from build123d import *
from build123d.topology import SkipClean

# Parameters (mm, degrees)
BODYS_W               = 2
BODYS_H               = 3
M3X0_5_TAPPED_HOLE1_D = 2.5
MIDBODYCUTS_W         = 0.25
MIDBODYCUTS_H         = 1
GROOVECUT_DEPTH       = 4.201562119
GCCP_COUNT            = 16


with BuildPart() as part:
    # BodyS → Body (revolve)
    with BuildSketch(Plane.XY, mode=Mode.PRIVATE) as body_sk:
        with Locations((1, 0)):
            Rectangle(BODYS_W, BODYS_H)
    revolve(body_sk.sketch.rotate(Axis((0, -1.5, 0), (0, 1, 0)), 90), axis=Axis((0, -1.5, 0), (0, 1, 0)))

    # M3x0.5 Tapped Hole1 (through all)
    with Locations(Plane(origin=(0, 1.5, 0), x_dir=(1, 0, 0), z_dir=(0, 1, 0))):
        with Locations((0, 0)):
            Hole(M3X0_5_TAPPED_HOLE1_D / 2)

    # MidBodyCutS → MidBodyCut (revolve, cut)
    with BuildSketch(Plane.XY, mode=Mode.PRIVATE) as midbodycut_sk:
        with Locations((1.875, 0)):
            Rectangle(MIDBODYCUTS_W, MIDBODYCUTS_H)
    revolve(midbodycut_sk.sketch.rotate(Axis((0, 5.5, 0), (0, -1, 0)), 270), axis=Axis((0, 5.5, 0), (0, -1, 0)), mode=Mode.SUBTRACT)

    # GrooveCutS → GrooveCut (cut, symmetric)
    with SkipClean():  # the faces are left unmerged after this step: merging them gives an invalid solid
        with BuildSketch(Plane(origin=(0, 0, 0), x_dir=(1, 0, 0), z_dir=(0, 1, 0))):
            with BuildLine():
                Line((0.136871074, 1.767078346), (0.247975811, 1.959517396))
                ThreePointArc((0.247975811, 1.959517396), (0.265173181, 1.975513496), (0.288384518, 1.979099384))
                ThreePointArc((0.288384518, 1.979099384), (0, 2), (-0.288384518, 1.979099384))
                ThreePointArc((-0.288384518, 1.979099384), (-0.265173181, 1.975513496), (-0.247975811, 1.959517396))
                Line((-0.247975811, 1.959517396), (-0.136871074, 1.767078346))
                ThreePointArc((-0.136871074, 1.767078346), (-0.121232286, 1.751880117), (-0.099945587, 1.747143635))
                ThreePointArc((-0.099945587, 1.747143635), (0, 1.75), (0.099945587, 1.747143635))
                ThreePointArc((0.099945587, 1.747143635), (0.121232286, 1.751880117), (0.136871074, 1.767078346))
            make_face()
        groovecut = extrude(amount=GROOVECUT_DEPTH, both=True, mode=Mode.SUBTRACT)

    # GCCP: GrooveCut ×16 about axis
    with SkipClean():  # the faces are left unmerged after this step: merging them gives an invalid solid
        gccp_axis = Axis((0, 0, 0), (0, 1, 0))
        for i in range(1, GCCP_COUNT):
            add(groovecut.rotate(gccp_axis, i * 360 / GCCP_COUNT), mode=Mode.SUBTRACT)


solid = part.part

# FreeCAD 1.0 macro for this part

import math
import FreeCAD as App
import Part
import Sketcher

V = App.Vector
Q = App.Units.Quantity

doc = App.newDocument("Part")
body = doc.addObject("PartDesign::Body", "Body")

sketch1 = doc.addObject("Sketcher::SketchObject", "Sketch")
body.addObject(sketch1)
sketch1.AttachmentSupport = (doc.XY_Plane, [""])
sketch1.MapMode = "FlatFace"
sketch1.addGeometry([
    Part.LineSegment(V(0, 1.5, 0), V(0, -1.5, 0)),
    Part.LineSegment(V(0, -1.5, 0), V(2, -1.5, 0)),
    Part.LineSegment(V(2, -1.5, 0), V(2, 1.5, 0)),
    Part.LineSegment(V(2, 1.5, 0), V(0, 1.5, 0)),
], False)
sketch1.addConstraint([
    Sketcher.Constraint("Coincident", 0, 2, 1, 1),
    Sketcher.Constraint("Coincident", 1, 2, 2, 1),
    Sketcher.Constraint("Coincident", 2, 2, 3, 1),
    Sketcher.Constraint("Coincident", 3, 2, 0, 1),
    Sketcher.Constraint("Vertical", 0),
    Sketcher.Constraint("Horizontal", 1),
    Sketcher.Constraint("Vertical", 2),
    Sketcher.Constraint("Horizontal", 3),
    Sketcher.Constraint("Symmetric", 0, 2, 3, 2, -1, 1),
    Sketcher.Constraint("DistanceX", 1, 1, 1, 2, 2.0),
    Sketcher.Constraint("DistanceY", 0, 2, 0, 1, 3.0),
])
revolution = doc.addObject("PartDesign::Revolution", "Revolution")
body.addObject(revolution)
revolution.Profile = sketch1
revolution.ReferenceAxis = (sketch1, ["V_Axis"])
revolution.Angle = 360

sketch2 = doc.addObject("Sketcher::SketchObject", "Sketch001")
body.addObject(sketch2)
sketch2.AttachmentSupport = (doc.XZ_Plane, [""])
sketch2.MapMode = "FlatFace"
sketch2.AttachmentOffset = App.Placement(V(0, 0, -1.5), App.Rotation())
sketch2.addGeometry(Part.Circle(V(0, 0, 0), V(0, 0, 1), 1.25), False)
sketch2.addConstraint([
    Sketcher.Constraint("Coincident", 0, 3, -1, 1),
    Sketcher.Constraint("Diameter", 0, 2.5),
])
doc.recompute()
hole = doc.addObject("PartDesign::Hole", "Hole")
body.addObject(hole)
hole.Profile = sketch2
hole.ThreadType = "None"
hole.Diameter = 2.5
hole.DepthType = "ThroughAll"
hole.Reversed = True

sketch3 = doc.addObject("Sketcher::SketchObject", "Sketch002")
body.addObject(sketch3)
sketch3.AttachmentSupport = (doc.XY_Plane, [""])
sketch3.MapMode = "FlatFace"
sketch3.addGeometry([
    Part.LineSegment(V(1.75, 0.5, 0), V(1.75, -0.5, 0)),
    Part.LineSegment(V(1.75, -0.5, 0), V(2, -0.5, 0)),
    Part.LineSegment(V(2, -0.5, 0), V(2, 0.5, 0)),
    Part.LineSegment(V(2, 0.5, 0), V(1.75, 0.5, 0)),
], False)
sketch3.addConstraint([
    Sketcher.Constraint("Coincident", 0, 2, 1, 1),
    Sketcher.Constraint("Coincident", 1, 2, 2, 1),
    Sketcher.Constraint("Coincident", 2, 2, 3, 1),
    Sketcher.Constraint("Coincident", 3, 2, 0, 1),
    Sketcher.Constraint("Vertical", 0),
    Sketcher.Constraint("Horizontal", 1),
    Sketcher.Constraint("Vertical", 2),
    Sketcher.Constraint("Horizontal", 3),
    Sketcher.Constraint("DistanceY", 0, 2, 0, 1, 1.0),
    Sketcher.Constraint("DistanceX", -1, 1, 1, 2, 2.0),
    Sketcher.Constraint("DistanceX", 1, 1, 1, 2, 0.25),
    Sketcher.Constraint("DistanceY", 0, 2, -1, 1, 0.5),
])
groove = doc.addObject("PartDesign::Groove", "Groove")
body.addObject(groove)
groove.Profile = sketch3
groove.ReferenceAxis = (sketch3, ["V_Axis"])
groove.Angle = 360

sketch4 = doc.addObject("Sketcher::SketchObject", "Sketch003")
body.addObject(sketch4)
sketch4.AttachmentSupport = (doc.XZ_Plane, [""])
sketch4.MapMode = "FlatFace"
sketch4.addGeometry([
    Part.LineSegment(V(0.136871, -1.767078, 0), V(0.247976, -1.959517, 0)),
    Part.ArcOfCircle(Part.Circle(V(0.282617, -1.939517, 0), V(0, 0, 1), 0.04), math.radians(-150.000001), math.radians(-81.709493)),
    Part.ArcOfCircle(Part.Circle(V(0, 0, 0), V(0, 0, 1), 2), math.radians(-98.290507), math.radians(-81.709493)),
    Part.ArcOfCircle(Part.Circle(V(-0.282617, -1.939517, 0), V(0, 0, 1), 0.04), math.radians(-98.290507), math.radians(-29.999999)),
    Part.LineSegment(V(-0.247976, -1.959517, 0), V(-0.136871, -1.767078, 0)),
    Part.ArcOfCircle(Part.Circle(V(-0.10223, -1.787078, 0), V(0, 0, 1), 0.04), math.radians(86.725953), math.radians(150.000002)),
    Part.ArcOfCircle(Part.Circle(V(0, 0, 0), V(0, 0, 1), 1.75), math.radians(-93.274044), math.radians(-86.725956)),
    Part.ArcOfCircle(Part.Circle(V(0.10223, -1.787078, 0), V(0, 0, 1), 0.04), math.radians(29.999998), math.radians(93.274047)),
], False)
sketch4.addConstraint([
    Sketcher.Constraint("Tangent", 0, 2, 1, 1),
    Sketcher.Constraint("Tangent", 1, 2, 2, 2),
    Sketcher.Constraint("Tangent", 2, 1, 3, 1),
    Sketcher.Constraint("Tangent", 3, 2, 4, 1),
    Sketcher.Constraint("Tangent", 4, 2, 5, 2),
    Sketcher.Constraint("Tangent", 5, 1, 6, 1),
    Sketcher.Constraint("Tangent", 6, 2, 7, 2),
    Sketcher.Constraint("Tangent", 7, 1, 0, 1),
    Sketcher.Constraint("Coincident", 2, 3, -1, 1),
    Sketcher.Constraint("Coincident", 6, 3, -1, 1),
    Sketcher.Constraint("Equal", 1, 3),
    Sketcher.Constraint("Equal", 3, 5),
    Sketcher.Constraint("Equal", 5, 7),
    Sketcher.Constraint("Symmetric", 0, 2, 3, 2, -2),
    Sketcher.Constraint("Radius", 2, 2.0),
    Sketcher.Constraint("Angle", 0, Q("-60 deg")),
    Sketcher.Constraint("Radius", 1, 0.04),
    Sketcher.Constraint("Radius", 6, 1.75),
    Sketcher.Constraint("DistanceX", 3, 3, 1, 2, 0.571001),
])
pocket1 = doc.addObject("PartDesign::Pocket", "Pocket")
body.addObject(pocket1)
pocket1.Profile = sketch4
pocket1.Length = 8.403124
pocket1.Midplane = True
doc.recompute()

polarpattern = doc.addObject("PartDesign::PolarPattern", "PolarPattern")
body.addObject(polarpattern)
polarpattern.Originals = [pocket1]
polarpattern.Axis = (doc.Y_Axis, [""])
polarpattern.Angle = 360
polarpattern.Occurrences = 16
body.Tip = polarpattern

doc.recompute()
